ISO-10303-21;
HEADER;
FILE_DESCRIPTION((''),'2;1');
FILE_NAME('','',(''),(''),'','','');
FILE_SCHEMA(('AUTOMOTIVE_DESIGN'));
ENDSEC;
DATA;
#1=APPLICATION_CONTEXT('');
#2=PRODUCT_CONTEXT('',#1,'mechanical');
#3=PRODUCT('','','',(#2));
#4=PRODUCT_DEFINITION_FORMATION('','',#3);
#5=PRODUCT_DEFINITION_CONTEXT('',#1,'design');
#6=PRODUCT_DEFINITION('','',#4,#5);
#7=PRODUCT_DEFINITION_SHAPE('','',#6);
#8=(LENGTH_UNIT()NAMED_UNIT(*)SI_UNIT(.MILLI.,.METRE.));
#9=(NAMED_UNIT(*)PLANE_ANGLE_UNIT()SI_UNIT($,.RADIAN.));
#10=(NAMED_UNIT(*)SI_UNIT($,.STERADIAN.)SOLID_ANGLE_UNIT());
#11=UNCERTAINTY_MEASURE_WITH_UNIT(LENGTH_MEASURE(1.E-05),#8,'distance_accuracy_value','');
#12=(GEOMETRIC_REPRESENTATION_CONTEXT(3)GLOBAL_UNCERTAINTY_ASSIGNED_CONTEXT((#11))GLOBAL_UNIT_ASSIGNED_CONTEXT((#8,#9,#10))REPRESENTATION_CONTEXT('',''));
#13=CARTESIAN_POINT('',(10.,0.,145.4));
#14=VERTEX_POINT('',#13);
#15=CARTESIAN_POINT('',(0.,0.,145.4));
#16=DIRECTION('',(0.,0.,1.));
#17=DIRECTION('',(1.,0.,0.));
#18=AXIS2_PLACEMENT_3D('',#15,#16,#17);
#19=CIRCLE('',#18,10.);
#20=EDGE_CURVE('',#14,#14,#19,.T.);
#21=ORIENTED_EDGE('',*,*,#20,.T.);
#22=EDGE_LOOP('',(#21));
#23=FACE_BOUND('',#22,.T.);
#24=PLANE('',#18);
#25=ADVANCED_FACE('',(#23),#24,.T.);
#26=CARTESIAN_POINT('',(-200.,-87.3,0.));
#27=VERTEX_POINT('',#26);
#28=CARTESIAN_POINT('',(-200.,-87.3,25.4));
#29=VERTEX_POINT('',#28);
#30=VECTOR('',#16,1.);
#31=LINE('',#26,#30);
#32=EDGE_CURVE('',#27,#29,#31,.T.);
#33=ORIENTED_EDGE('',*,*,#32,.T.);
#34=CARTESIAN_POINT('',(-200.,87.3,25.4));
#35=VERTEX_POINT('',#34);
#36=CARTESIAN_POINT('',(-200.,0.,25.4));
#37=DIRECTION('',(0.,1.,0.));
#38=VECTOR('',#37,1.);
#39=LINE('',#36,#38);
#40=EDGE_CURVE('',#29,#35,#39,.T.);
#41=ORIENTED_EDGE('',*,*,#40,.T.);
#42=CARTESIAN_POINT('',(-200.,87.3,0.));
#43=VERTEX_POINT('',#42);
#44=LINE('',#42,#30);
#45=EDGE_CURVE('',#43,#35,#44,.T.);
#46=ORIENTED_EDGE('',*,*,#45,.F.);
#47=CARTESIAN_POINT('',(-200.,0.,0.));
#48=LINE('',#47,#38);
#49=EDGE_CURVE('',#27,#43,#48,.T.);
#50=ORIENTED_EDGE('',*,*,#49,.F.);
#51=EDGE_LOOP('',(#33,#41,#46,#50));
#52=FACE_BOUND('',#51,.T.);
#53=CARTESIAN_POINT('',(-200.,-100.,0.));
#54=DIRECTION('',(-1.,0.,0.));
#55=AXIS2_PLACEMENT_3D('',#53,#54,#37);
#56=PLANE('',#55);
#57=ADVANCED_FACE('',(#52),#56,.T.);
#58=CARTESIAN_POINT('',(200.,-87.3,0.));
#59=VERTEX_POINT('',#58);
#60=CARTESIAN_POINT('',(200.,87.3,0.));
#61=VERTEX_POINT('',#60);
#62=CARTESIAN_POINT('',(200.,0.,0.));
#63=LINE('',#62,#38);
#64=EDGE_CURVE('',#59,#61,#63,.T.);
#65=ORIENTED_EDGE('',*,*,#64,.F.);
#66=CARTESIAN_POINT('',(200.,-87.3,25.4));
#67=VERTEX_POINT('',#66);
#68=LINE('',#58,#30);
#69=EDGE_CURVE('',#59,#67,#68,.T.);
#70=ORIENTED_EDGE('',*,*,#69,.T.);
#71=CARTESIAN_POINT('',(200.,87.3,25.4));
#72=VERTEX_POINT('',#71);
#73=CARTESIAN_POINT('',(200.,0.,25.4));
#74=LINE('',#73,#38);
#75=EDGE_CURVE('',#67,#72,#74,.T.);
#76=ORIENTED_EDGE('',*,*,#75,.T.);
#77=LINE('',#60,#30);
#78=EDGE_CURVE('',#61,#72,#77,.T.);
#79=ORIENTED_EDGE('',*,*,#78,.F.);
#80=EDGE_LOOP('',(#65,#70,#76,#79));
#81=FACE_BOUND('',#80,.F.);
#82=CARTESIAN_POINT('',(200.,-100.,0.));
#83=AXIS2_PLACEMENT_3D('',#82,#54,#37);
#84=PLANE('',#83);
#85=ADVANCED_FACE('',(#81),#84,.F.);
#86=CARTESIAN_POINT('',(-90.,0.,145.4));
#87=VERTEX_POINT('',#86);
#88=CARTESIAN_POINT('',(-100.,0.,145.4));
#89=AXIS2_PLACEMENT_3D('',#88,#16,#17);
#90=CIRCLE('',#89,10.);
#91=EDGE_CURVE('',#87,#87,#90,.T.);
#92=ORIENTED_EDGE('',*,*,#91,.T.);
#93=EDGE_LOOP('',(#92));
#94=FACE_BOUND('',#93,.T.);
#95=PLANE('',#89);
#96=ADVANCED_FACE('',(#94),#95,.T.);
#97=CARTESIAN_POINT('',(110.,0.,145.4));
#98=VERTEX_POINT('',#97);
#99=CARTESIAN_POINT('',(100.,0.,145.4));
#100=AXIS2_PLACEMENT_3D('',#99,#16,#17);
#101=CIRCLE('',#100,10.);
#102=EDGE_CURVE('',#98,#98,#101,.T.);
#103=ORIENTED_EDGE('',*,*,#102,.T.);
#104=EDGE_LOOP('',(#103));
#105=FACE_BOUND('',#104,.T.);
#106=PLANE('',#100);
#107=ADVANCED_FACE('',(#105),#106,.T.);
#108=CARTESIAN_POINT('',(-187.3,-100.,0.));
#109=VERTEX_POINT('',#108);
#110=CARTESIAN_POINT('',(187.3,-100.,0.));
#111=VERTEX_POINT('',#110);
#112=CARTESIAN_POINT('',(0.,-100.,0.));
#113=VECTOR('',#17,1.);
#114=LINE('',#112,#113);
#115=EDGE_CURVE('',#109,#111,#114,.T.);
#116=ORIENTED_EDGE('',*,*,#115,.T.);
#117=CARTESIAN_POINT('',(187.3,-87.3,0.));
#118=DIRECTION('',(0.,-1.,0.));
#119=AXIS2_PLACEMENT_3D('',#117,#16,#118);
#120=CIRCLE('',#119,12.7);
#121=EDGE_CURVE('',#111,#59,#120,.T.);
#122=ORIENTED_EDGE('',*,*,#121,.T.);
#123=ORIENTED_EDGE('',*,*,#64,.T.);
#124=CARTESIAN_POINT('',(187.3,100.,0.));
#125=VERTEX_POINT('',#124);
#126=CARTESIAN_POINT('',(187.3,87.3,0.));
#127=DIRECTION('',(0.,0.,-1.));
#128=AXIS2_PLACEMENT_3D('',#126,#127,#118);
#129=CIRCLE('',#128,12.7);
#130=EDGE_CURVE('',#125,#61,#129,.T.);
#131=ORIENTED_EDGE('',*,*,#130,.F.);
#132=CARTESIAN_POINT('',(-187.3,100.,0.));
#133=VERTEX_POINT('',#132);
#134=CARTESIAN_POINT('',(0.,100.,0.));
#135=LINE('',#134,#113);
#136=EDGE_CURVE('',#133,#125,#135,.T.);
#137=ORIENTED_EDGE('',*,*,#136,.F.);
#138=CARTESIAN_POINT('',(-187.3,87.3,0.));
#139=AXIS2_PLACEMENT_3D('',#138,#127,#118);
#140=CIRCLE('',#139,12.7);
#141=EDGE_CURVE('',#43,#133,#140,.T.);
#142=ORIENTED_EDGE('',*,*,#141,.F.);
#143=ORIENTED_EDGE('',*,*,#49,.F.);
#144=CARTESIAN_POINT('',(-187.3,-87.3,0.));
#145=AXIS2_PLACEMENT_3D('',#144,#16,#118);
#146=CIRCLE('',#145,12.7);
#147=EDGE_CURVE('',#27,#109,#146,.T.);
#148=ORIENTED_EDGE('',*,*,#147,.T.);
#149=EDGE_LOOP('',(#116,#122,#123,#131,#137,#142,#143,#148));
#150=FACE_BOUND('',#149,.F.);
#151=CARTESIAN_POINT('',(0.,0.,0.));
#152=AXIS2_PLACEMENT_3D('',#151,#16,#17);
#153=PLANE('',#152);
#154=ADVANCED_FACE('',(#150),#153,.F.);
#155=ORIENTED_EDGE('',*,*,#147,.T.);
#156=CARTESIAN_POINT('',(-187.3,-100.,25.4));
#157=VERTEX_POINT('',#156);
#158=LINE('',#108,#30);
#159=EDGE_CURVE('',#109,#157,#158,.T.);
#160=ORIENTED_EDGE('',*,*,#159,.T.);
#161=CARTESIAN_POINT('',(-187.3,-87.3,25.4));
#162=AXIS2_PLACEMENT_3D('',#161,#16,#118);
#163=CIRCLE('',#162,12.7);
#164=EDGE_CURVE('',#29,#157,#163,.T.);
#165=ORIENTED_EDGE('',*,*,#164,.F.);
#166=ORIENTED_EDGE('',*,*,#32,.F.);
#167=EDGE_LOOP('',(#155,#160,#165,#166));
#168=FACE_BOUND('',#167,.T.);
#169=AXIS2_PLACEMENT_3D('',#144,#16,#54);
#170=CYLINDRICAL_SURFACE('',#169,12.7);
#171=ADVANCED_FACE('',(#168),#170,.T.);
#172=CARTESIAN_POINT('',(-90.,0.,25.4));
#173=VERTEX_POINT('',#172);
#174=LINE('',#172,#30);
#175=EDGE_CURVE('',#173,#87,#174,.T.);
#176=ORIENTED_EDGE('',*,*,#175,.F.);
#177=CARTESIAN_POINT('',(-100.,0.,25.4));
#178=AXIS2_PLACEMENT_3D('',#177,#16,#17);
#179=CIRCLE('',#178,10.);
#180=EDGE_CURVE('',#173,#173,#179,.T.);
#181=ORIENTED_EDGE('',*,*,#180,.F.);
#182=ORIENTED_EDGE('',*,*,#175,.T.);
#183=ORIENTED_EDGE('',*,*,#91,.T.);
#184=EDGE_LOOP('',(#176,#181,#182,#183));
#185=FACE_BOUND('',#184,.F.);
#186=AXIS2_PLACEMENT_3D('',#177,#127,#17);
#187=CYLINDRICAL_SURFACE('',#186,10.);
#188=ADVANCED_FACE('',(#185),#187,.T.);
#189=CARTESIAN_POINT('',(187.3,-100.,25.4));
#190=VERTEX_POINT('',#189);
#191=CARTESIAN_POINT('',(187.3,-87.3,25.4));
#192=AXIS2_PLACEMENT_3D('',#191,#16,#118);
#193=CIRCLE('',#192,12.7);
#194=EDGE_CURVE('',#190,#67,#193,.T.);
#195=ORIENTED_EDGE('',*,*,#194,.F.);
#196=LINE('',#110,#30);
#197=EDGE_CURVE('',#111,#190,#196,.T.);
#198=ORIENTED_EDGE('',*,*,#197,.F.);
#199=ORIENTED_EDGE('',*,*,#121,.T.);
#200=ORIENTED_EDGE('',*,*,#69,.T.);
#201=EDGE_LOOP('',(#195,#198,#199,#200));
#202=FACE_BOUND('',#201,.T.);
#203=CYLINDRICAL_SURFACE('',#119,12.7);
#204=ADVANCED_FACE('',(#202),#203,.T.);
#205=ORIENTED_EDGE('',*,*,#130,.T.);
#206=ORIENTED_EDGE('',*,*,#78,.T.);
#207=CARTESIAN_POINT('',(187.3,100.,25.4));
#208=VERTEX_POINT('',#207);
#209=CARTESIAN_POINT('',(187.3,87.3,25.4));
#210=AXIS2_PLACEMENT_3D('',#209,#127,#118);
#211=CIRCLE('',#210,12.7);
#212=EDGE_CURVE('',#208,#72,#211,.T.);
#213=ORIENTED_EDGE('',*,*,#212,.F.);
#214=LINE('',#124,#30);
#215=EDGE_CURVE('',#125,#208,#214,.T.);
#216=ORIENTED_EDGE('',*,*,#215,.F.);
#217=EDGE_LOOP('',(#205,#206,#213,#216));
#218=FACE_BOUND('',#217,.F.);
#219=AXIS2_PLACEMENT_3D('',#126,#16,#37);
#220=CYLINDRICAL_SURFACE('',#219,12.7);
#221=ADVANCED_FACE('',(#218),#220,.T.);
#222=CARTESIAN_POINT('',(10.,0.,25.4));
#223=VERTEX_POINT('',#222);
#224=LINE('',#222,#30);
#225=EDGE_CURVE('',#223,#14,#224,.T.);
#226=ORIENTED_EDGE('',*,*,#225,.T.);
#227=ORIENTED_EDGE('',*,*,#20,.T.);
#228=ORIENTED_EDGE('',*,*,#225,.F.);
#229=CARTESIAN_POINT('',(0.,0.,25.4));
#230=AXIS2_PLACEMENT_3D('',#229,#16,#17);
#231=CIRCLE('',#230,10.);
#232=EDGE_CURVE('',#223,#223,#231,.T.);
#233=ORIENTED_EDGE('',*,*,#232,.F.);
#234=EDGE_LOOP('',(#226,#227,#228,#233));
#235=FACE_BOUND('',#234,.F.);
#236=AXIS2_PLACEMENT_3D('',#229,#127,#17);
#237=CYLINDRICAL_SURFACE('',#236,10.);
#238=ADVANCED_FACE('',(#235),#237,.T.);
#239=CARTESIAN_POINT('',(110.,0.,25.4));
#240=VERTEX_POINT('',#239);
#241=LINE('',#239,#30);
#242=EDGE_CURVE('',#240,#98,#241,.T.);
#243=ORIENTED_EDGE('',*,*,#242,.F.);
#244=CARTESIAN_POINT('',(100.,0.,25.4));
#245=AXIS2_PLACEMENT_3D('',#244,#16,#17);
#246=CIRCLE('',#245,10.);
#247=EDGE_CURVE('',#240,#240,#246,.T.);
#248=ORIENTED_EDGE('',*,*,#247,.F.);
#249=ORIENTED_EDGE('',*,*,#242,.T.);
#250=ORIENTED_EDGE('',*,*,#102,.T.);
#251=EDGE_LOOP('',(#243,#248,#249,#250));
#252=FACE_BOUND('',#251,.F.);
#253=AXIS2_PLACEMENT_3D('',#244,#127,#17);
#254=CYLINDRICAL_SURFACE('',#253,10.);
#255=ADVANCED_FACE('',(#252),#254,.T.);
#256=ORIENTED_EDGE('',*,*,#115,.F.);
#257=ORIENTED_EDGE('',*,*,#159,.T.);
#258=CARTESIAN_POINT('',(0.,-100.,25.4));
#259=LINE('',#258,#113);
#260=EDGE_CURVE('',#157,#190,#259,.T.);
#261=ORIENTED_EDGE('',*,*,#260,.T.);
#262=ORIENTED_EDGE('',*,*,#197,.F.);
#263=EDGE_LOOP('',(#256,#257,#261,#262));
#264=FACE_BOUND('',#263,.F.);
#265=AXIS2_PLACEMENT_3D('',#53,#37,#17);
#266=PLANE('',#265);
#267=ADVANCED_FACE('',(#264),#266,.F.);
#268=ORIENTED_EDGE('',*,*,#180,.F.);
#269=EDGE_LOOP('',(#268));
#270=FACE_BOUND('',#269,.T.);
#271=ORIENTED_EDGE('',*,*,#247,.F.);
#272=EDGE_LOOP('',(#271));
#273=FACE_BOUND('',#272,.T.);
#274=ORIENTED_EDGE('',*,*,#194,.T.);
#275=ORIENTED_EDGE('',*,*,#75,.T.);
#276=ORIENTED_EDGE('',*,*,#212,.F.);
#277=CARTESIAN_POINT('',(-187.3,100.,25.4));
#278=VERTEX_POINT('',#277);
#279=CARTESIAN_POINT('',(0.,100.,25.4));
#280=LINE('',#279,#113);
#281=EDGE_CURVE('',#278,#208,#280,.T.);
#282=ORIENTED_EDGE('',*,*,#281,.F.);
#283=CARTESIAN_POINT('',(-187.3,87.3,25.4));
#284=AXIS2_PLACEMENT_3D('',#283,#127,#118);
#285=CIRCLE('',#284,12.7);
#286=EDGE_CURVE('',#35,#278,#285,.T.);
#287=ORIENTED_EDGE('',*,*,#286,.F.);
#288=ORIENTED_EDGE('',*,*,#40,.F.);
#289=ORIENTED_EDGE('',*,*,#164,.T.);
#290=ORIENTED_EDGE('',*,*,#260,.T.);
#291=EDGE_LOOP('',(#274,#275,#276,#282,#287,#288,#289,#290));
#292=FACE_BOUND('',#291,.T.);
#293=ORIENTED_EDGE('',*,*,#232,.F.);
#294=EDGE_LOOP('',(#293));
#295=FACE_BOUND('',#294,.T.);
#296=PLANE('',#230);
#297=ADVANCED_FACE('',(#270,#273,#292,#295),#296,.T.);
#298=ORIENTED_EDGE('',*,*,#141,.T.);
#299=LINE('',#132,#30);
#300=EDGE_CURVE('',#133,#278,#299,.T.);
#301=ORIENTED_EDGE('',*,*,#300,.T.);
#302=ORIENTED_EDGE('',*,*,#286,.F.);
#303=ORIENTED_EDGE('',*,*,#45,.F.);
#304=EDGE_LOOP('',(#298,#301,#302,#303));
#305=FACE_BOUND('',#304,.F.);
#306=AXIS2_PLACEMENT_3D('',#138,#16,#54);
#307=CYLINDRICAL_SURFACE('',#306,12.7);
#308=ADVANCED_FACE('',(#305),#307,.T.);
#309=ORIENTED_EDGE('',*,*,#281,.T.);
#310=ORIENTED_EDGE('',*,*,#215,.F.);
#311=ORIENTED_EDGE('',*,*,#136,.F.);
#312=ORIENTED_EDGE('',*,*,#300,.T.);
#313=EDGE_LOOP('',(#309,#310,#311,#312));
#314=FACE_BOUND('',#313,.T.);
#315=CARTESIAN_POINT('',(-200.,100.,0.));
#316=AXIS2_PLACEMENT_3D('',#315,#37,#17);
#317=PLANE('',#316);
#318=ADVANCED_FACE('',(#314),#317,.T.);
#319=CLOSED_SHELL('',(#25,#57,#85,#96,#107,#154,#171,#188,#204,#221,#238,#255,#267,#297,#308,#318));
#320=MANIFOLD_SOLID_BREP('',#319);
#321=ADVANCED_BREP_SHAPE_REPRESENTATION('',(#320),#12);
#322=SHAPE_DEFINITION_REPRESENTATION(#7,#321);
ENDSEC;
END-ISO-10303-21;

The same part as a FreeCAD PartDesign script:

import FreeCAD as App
import Part
import Sketcher

V = App.Vector
Q = App.Units.Quantity


def edges_at(feature, points):
    """Names of the edges that pass closest to the given points."""
    edges = feature.Shape.Edges
    near = lambda p: min(range(len(edges)), key=lambda i: edges[i].distToShape(Part.Vertex(*p))[0])
    return sorted({f"Edge{near(p) + 1}" for p in points})


def add_polygon(sketch, points):
    """Adds a closed chain of lines whose ends are joined by coincident constraints."""
    first, n = sketch.GeometryCount, len(points)
    for a, b in zip(points, points[1:] + points[:1]):
        sketch.addGeometry(Part.LineSegment(App.Vector(*a, 0), App.Vector(*b, 0)), False)
    for i in range(n):
        sketch.addConstraint(Sketcher.Constraint("Coincident", first + i, 2, first + (i + 1) % n, 1))

doc = App.newDocument("Part")
body = doc.addObject("PartDesign::Body", "Body")

# Sketch on XY plane
sketch1 = doc.addObject("Sketcher::SketchObject", "Sketch")
body.addObject(sketch1)
sketch1.AttachmentSupport = (doc.XY_Plane, [""])
sketch1.MapMode = "FlatFace"
add_polygon(sketch1, [(-200, 100), (-200, -100), (200, -100), (200, 100)])  # lines 0-3
sketch1.addConstraint([
    Sketcher.Constraint("Vertical", 0),
    Sketcher.Constraint("Horizontal", 1),
    Sketcher.Constraint("Vertical", 2),
    Sketcher.Constraint("Horizontal", 3),
    Sketcher.Constraint("Symmetric", 0, 2, 2, 2, -1, 1),
    Sketcher.Constraint("DistanceX", 1, 1, 1, 2, Q("400 mm")),
    Sketcher.Constraint("DistanceY", 0, 2, 0, 1, Q("200 mm")),
])
pad1 = doc.addObject("PartDesign::Pad", "Pad")
body.addObject(pad1)
pad1.Profile = sketch1
pad1.Length = 25.4

# Sketch on XY plane
sketch2 = doc.addObject("Sketcher::SketchObject", "Sketch001")
body.addObject(sketch2)
sketch2.AttachmentSupport = (doc.XY_Plane, [""])
sketch2.MapMode = "FlatFace"
sketch2.AttachmentOffset = App.Placement(V(0, 0, 25.4), App.Rotation())
sketch2.addGeometry([
    Part.Circle(V(0, 0, 0), V(0, 0, 1), 10),
    Part.Circle(V(100, 0, 0), V(0, 0, 1), 10),
    Part.Circle(V(-100, 0, 0), V(0, 0, 1), 10),
], False)
sketch2.addConstraint([
    Sketcher.Constraint("Coincident", 0, 3, -1, 1),
    Sketcher.Constraint("Equal", 0, 1),
    Sketcher.Constraint("Equal", 1, 2),
    Sketcher.Constraint("Symmetric", 1, 3, 2, 3, -1, 1),
    Sketcher.Constraint("PointOnObject", 1, 3, -1),
    Sketcher.Constraint("Diameter", 0, Q("20 mm")),
    Sketcher.Constraint("DistanceX", -1, 1, 1, 3, Q("100 mm")),
])
pad2 = doc.addObject("PartDesign::Pad", "Pad001")
body.addObject(pad2)
pad2.Profile = sketch2
pad2.Length = 120
doc.recompute()

fillet = doc.addObject("PartDesign::Fillet", "Fillet")
body.addObject(fillet)
fillet.Base = (pad2, edges_at(pad2, [
    (200, -100, 12.7),
    (-200, -100, 12.7),
    (-200, 100, 12.7),
    (200, 100, 12.7),
]))
fillet.Radius = 12.7

doc.recompute()
